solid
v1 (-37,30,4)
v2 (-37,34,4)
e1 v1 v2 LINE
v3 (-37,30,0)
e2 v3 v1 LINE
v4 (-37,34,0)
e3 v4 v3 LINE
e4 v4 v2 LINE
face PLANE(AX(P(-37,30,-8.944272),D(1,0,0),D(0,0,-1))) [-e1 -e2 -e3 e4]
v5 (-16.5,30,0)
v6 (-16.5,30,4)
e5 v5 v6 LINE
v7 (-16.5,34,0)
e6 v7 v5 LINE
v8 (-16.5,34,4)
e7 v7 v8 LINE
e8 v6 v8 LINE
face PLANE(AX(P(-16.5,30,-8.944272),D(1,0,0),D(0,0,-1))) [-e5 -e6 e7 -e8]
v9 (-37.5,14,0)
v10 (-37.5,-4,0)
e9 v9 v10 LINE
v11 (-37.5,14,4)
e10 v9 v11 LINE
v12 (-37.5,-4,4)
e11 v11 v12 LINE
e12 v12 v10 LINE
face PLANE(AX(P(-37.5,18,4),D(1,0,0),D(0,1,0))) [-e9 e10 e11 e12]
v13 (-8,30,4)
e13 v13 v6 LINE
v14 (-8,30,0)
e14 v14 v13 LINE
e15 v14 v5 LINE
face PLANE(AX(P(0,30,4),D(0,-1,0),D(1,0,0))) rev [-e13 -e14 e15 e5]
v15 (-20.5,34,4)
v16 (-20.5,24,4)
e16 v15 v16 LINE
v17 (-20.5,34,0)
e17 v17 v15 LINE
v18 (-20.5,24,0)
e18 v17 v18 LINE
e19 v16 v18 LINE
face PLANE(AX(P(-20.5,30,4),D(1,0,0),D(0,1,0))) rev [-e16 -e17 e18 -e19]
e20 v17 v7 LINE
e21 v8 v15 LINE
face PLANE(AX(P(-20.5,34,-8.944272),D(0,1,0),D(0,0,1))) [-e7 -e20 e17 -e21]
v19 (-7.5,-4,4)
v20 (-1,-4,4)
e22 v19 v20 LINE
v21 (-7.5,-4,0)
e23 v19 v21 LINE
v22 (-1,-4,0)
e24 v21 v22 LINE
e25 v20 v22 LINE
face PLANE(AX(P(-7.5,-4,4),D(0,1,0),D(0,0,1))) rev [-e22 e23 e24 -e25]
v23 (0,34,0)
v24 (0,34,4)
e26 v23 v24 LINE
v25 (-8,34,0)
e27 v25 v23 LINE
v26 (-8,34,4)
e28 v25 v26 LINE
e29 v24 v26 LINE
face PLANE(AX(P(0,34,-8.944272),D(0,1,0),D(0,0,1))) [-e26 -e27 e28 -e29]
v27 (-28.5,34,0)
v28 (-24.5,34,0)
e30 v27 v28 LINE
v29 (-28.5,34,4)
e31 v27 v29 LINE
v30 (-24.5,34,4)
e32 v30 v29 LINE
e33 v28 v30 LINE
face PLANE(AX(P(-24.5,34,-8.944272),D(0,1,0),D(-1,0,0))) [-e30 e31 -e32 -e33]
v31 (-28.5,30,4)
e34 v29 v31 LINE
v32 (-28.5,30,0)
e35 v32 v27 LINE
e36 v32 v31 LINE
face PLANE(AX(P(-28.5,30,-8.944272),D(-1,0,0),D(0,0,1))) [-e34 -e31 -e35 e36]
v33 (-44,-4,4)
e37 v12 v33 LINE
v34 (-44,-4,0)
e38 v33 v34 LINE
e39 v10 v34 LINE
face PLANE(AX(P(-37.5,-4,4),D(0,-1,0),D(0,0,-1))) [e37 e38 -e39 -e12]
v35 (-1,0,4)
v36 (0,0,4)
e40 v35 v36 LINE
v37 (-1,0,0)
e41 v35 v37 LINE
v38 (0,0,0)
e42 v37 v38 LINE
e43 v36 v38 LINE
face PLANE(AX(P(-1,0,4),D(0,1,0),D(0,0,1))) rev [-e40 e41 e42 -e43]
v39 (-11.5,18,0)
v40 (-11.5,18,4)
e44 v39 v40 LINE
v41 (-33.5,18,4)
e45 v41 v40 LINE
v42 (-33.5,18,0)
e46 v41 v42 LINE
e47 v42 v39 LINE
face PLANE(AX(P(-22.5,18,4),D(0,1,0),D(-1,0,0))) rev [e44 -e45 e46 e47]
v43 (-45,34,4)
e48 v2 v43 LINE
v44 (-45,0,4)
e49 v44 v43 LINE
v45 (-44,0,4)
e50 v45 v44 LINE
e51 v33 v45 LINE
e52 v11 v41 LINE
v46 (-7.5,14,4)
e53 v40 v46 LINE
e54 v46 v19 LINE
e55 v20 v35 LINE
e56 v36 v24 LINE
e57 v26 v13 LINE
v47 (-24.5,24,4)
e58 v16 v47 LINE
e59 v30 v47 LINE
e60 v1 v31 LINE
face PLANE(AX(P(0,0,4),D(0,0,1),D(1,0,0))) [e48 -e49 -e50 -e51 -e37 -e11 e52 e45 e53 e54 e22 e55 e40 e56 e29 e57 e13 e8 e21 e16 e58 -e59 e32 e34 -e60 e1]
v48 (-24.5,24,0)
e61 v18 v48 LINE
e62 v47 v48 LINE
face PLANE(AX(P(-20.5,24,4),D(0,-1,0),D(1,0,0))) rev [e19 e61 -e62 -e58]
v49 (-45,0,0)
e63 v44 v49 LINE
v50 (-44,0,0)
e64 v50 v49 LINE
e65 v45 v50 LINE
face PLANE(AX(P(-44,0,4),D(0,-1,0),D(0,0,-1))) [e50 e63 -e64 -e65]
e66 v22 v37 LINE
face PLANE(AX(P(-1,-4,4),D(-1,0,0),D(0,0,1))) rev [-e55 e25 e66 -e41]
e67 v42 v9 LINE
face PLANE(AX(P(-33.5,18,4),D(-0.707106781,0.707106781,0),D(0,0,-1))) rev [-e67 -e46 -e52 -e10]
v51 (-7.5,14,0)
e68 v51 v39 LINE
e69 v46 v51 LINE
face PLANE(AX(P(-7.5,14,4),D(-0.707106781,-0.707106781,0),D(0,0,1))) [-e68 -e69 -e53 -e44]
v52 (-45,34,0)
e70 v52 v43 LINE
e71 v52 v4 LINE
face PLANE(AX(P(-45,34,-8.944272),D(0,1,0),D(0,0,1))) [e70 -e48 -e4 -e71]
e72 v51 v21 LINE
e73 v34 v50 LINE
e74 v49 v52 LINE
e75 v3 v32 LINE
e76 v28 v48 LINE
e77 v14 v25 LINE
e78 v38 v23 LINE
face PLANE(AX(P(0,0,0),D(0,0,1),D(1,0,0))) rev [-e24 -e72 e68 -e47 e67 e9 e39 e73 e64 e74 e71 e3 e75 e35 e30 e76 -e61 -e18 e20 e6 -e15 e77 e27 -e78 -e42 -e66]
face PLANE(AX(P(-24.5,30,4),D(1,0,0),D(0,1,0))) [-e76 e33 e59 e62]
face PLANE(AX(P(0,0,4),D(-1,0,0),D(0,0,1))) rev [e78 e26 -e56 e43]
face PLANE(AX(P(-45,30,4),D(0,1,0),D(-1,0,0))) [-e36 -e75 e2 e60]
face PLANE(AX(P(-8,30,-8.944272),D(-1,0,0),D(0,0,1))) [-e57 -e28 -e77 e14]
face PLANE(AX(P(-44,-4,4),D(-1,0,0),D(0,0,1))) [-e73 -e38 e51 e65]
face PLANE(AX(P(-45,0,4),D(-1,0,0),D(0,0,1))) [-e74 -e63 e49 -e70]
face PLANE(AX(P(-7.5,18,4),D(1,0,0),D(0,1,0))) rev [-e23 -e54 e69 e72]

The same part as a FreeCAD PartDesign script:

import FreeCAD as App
import Part
import Sketcher

V = App.Vector
Q = App.Units.Quantity


def edges_at(feature, points):
    """Names of the edges that pass closest to the given points."""
    edges = feature.Shape.Edges
    near = lambda p: min(range(len(edges)), key=lambda i: edges[i].distToShape(Part.Vertex(*p))[0])
    return sorted({f"Edge{near(p) + 1}" for p in points})


def add_polygon(sketch, points):
    """Adds a closed chain of lines whose ends are joined by coincident constraints."""
    first, n = sketch.GeometryCount, len(points)
    for a, b in zip(points, points[1:] + points[:1]):
        sketch.addGeometry(Part.LineSegment(App.Vector(*a, 0), App.Vector(*b, 0)), False)
    for i in range(n):
        sketch.addConstraint(Sketcher.Constraint("Coincident", first + i, 2, first + (i + 1) % n, 1))

doc = App.newDocument("Part")
body = doc.addObject("PartDesign::Body", "Body")

# Sketch on XY plane
sketch1 = body.newObject("Sketcher::SketchObject", "Sketch")
sketch1.AttachmentSupport = (doc.getObject("XY_Plane"), [""])
sketch1.MapMode = "FlatFace"
add_polygon(sketch1, [(0, 0), (0, 30), (-20.5, 30), (-20.5, 24), (-22.5, 24), (-22.5, 18), (-7.5, 18), (-7.5, -4), (-1, -4), (-1, 0)])  # lines 0-9
sketch1.addConstraint([
    Sketcher.Constraint("Vertical", 0),
    Sketcher.Constraint("Horizontal", 1),
    Sketcher.Constraint("Vertical", 2),
    Sketcher.Constraint("Horizontal", 3),
    Sketcher.Constraint("Vertical", 4),
    Sketcher.Constraint("Horizontal", 5),
    Sketcher.Constraint("Vertical", 6),
    Sketcher.Constraint("Horizontal", 7),
    Sketcher.Constraint("Vertical", 8),
    Sketcher.Constraint("Horizontal", 9),
    Sketcher.Constraint("Coincident", 9, 2, -1, 1),
    Sketcher.Constraint("Equal", 2, 4),
    Sketcher.Constraint("DistanceX", 3, 2, 3, 1, Q("2 mm")),
    Sketcher.Constraint("DistanceX", 5, 1, 5, 2, Q("15 mm")),
    Sketcher.Constraint("DistanceX", 9, 1, 9, 2, Q("1 mm")),
    Sketcher.Constraint("DistanceY", 0, 1, 0, 2, Q("30 mm")),
    Sketcher.Constraint("DistanceY", 2, 2, 2, 1, Q("6 mm")),
    Sketcher.Constraint("DistanceY", 6, 2, 6, 1, Q("22 mm")),
    Sketcher.Constraint("DistanceX", 1, 2, 1, 1, Q("20.5 mm")),
])
pad1 = body.newObject("PartDesign::Pad", "Pad")
pad1.Profile = sketch1
pad1.Length = 4
doc.recompute()

chamfer = body.newObject("PartDesign::Chamfer", "Chamfer")
chamfer.Base = (pad1, edges_at(pad1, [(-7.5, 18, 2)]))
chamfer.Size = 4
doc.recompute()

datumplane = body.newObject("PartDesign::Plane", "DatumPlane")
datumplane.AttachmentSupport = (doc.getObject("YZ_Plane"), [""])
datumplane.MapMode = "FlatFace"
datumplane.AttachmentOffset = App.Placement(V(0, 0, -22.5), App.Rotation())
mirrored = body.newObject("PartDesign::Mirrored", "Mirrored")
mirrored.Originals = [pad1]
mirrored.MirrorPlane = (datumplane, [""])
body.Tip = mirrored
doc.recompute()

chamfer2 = body.newObject("PartDesign::Chamfer", "Chamfer001")
chamfer2.Base = (mirrored, edges_at(mirrored, [(-37.5, 18, 2)]))
chamfer2.Size = 4

# Sketch on XY plane
sketch2 = body.newObject("Sketcher::SketchObject", "Sketch001")
sketch2.AttachmentSupport = (doc.getObject("XY_Plane"), [""])
sketch2.MapMode = "FlatFace"
sketch2.AttachmentOffset = App.Placement(V(0, 0, 4), App.Rotation())
add_polygon(sketch2, [(-28.5, 34), (-28.5, 30), (-24.5, 30), (-24.5, 34)])  # lines 0-3
add_polygon(sketch2, [(-20.5, 34), (-20.5, 30), (-16.5, 30), (-16.5, 34)])  # lines 4-7
add_polygon(sketch2, [(-8, 34), (-8, 30), (0, 30), (0, 34)])  # lines 8-11
add_polygon(sketch2, [(-45, 34), (-45, 30), (-37, 30), (-37, 34)])  # lines 12-15
sketch2.addConstraint([
    Sketcher.Constraint("Vertical", 0),
    Sketcher.Constraint("Horizontal", 1),
    Sketcher.Constraint("Vertical", 2),
    Sketcher.Constraint("Horizontal", 3),
    Sketcher.Constraint("Vertical", 4),
    Sketcher.Constraint("Horizontal", 5),
    Sketcher.Constraint("Vertical", 6),
    Sketcher.Constraint("Horizontal", 7),
    Sketcher.Constraint("Vertical", 8),
    Sketcher.Constraint("Horizontal", 9),
    Sketcher.Constraint("Vertical", 10),
    Sketcher.Constraint("Horizontal", 11),
    Sketcher.Constraint("Vertical", 12),
    Sketcher.Constraint("Horizontal", 13),
    Sketcher.Constraint("Vertical", 14),
    Sketcher.Constraint("Horizontal", 15),
    Sketcher.Constraint("PointOnObject", 9, 2, -2),
    Sketcher.Constraint("Horizontal", 1, 2, 4, 2),
    Sketcher.Constraint("Horizontal", 3, 2, 6, 2),
    Sketcher.Constraint("Horizontal", 5, 2, 8, 2),
    Sketcher.Constraint("Horizontal", 7, 2, 10, 2),
    Sketcher.Constraint("Horizontal", 9, 2, 12, 2),
    Sketcher.Constraint("Horizontal", 11, 2, 14, 2),
    Sketcher.Constraint("Equal", 3, 5),
    Sketcher.Constraint("Equal", 11, 13),
    Sketcher.Constraint("Equal", 7, 0),
    Sketcher.Constraint("DistanceX", 1, 1, 1, 2, Q("4 mm")),
    Sketcher.Constraint("DistanceX", 9, 1, 9, 2, Q("8 mm")),
    Sketcher.Constraint("DistanceY", -1, 1, 0, 2, Q("30 mm")),
    Sketcher.Constraint("DistanceX", 12, 2, -1, 1, Q("45 mm")),
    Sketcher.Constraint("DistanceX", 1, 2, 4, 2, Q("4 mm")),
    Sketcher.Constraint("DistanceX", 0, 2, -1, 1, Q("28.5 mm")),
])
pad2 = body.newObject("PartDesign::Pad", "Pad001")
pad2.Profile = sketch2
pad2.Length = 4
pad2.Reversed = True

doc.recompute()
